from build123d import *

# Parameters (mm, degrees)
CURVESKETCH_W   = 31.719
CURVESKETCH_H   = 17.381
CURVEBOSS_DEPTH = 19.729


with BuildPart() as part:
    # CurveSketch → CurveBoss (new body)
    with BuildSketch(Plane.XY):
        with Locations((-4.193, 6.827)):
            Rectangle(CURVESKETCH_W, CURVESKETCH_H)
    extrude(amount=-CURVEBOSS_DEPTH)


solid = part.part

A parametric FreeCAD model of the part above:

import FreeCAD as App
import Part
import Sketcher
Q = App.Units.Quantity


def add_polygon(sketch, points):
    """Adds a closed chain of lines whose ends are joined by coincident constraints."""
    first, n = sketch.GeometryCount, len(points)
    for a, b in zip(points, points[1:] + points[:1]):
        sketch.addGeometry(Part.LineSegment(App.Vector(*a, 0), App.Vector(*b, 0)), False)
    for i in range(n):
        sketch.addConstraint(Sketcher.Constraint("Coincident", first + i, 2, first + (i + 1) % n, 1))

doc = App.newDocument("Part")
body = doc.addObject("PartDesign::Body", "Body")

sketch1 = body.newObject("Sketcher::SketchObject", "Sketch")
sketch1.AttachmentSupport = (doc.getObject("XY_Plane"), [""])
sketch1.MapMode = "FlatFace"
add_polygon(sketch1, [(-20.0525, 15.5175), (-20.0525, -1.8635), (11.6665, -1.8635), (11.6665, 15.5175)])
sketch1.addConstraint([
    Sketcher.Constraint("Vertical", 0),
    Sketcher.Constraint("Horizontal", 1),
    Sketcher.Constraint("Vertical", 2),
    Sketcher.Constraint("Horizontal", 3),
    Sketcher.Constraint("DistanceX", 1, 1, 1, 2, Q("31.719 mm")),
    Sketcher.Constraint("DistanceY", 0, 2, 0, 1, Q("17.381 mm")),
    Sketcher.Constraint("DistanceX", 0, 2, -1, 1, Q("20.0525 mm")),
    Sketcher.Constraint("DistanceY", 0, 2, -1, 1, Q("1.8635 mm")),
])
pad1 = body.newObject("PartDesign::Pad", "Pad")
pad1.Profile = sketch1
pad1.Length = 19.729
pad1.Reversed = True

doc.recompute()
